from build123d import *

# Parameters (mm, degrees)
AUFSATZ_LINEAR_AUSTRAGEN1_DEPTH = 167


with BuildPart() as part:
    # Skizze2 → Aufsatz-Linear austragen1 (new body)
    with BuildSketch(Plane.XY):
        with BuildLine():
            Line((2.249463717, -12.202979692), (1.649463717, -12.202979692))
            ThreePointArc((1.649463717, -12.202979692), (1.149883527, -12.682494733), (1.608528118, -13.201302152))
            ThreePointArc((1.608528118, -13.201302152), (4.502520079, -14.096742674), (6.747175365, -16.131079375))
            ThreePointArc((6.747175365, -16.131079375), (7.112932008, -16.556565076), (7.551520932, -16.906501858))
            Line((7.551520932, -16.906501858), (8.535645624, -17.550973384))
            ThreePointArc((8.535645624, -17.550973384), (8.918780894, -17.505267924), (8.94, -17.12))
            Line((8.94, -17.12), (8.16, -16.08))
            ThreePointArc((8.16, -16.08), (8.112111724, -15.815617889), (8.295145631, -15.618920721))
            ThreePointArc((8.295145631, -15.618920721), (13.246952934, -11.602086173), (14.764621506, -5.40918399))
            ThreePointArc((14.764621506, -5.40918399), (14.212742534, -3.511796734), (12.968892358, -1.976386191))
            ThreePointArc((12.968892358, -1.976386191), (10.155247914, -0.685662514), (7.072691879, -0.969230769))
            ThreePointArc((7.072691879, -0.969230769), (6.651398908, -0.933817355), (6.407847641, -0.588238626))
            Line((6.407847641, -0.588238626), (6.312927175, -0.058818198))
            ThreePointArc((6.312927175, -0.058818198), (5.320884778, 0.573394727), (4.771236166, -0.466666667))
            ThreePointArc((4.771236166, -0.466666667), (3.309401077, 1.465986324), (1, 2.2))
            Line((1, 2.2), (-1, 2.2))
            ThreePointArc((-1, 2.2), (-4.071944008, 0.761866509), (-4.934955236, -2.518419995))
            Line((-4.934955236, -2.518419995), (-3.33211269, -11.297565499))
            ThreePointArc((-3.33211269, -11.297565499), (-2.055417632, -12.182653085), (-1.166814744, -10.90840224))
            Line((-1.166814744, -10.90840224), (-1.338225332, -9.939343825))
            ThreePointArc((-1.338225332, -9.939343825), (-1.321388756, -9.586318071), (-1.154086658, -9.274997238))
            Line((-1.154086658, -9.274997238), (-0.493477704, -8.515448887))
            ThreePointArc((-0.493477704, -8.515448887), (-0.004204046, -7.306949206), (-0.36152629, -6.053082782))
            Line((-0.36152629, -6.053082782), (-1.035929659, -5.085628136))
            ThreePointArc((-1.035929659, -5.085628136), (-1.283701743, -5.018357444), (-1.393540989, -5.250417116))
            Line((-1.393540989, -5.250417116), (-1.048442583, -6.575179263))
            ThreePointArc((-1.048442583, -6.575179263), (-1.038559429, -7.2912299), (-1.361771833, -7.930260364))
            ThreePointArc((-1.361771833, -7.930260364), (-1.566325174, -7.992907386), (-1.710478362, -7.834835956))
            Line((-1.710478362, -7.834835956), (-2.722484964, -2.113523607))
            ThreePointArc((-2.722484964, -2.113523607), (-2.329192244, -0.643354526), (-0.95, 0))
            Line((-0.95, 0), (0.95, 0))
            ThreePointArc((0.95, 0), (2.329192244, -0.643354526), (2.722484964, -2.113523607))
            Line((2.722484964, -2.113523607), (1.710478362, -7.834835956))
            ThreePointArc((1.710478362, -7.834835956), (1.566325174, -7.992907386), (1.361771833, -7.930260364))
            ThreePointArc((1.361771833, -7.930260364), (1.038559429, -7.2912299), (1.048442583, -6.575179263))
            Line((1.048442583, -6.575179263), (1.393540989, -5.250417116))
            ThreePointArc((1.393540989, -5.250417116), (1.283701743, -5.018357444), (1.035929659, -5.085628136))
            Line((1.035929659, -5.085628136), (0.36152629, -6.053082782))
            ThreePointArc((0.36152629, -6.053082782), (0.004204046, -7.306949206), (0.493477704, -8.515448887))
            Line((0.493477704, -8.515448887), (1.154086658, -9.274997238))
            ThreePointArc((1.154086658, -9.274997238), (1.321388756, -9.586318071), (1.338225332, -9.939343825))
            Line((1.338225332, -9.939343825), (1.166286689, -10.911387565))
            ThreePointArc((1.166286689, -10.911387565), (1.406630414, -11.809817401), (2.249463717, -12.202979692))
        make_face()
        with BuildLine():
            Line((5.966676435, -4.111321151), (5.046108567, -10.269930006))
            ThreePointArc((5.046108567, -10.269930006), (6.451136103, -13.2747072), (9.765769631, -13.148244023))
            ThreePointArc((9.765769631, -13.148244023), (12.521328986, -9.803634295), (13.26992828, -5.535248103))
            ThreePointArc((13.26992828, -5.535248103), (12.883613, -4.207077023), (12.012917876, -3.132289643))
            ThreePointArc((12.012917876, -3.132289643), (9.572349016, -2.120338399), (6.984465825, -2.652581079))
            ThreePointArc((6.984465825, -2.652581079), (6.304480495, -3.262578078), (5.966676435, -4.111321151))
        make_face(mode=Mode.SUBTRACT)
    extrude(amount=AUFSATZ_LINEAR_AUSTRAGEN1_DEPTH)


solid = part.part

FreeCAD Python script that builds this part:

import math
import FreeCAD as App
import Part
import Sketcher

V = App.Vector
Q = App.Units.Quantity

doc = App.newDocument("Part")
params = doc.addObject("Spreadsheet::Sheet", "Params")
for row, (alias, value) in enumerate([
    ("sketch1_radius", "6.999999 mm"),
    ("sketch1_radius2", "10 mm"),
    ("sketch1_radius3", "5 mm"),
    ("sketch1_radius4", "6 mm"),
    ("sketch1_radius5", "4 mm"),
    ("pad1_length", "167 mm"),
], start=1):
    params.set(f"A{row}", alias)
    params.set(f"B{row}", "=" + value)
    params.setAlias(f"B{row}", alias)

body = doc.addObject("PartDesign::Body", "Body")

# Sketch on XY plane
sketch1 = body.newObject("Sketcher::SketchObject", "Sketch")
sketch1.AttachmentSupport = (doc.getObject("XY_Plane"), [""])
sketch1.MapMode = "FlatFace"
sketch1.addGeometry([
    Part.LineSegment(V(2.249464, -12.20298, 0), V(1.649464, -12.20298, 0)),  # 0
    Part.ArcOfCircle(Part.Circle(V(1.649464, -12.70298, 0), V(0, 0, 1), 0.500001), math.radians(90.000057), math.radians(265.303817)),  # 1
    Part.ArcOfCircle(Part.Circle(V(1.035431, -20.177802, 0), V(0, 0, 1), 6.999999), math.radians(35.317247), math.radians(85.303878)),  # 2
    Part.ArcOfCircle(Part.Circle(V(9.19506, -14.396774, 0), V(0, 0, 1), 2.999992), math.radians(-144.682756), math.radians(-123.219486)),  # 3
    Part.LineSegment(V(7.551521, -16.906502, 0), V(8.535646, -17.550973, 0)),  # 4
    Part.ArcOfCircle(Part.Circle(V(8.7, -17.3, 0), V(0, 0, 1), 0.3), math.radians(-123.219496), math.radians(36.869898)),  # 5
    Part.LineSegment(V(8.94, -17.12, 0), V(8.16, -16.08, 0)),  # 6
    Part.ArcOfCircle(Part.Circle(V(8.4, -15.9, 0), V(0, 0, 1), 0.3), math.radians(110.457626), math.radians(216.869898)),  # 7
    Part.ArcOfCircle(Part.Circle(V(4.8, -6.249611, 0), V(0, 0, 1), 10), math.radians(-69.542373), math.radians(4.820981)),  # 8
    Part.ArcOfCircle(Part.Circle(V(9.782311, -5.829398, 0), V(0, 0, 1), 5), math.radians(4.820981), math.radians(50.408006)),  # 9
    Part.ArcOfCircle(Part.Circle(V(9.144994, -6.6, 0), V(0, 0, 1), 6), math.radians(50.408006), math.radians(110.205224)),  # 10
    Part.ArcOfCircle(Part.Circle(V(6.9, -0.5, 0), V(0, 0, 1), 0.5), math.radians(-169.835364), math.radians(-69.794776)),  # 11
    Part.LineSegment(V(6.407848, -0.588239, 0), V(6.312927, -0.058818, 0)),  # 12
    Part.ArcOfCircle(Part.Circle(V(5.525483, -0.2, 0), V(0, 0, 1), 0.8), math.radians(10.164637), math.radians(199.471221)),  # 13
    Part.ArcOfCircle(Part.Circle(V(1, -1.8, 0), V(0, 0, 1), 4), math.radians(19.471221), math.radians(90)),  # 14
    Part.LineSegment(V(1, 2.2, 0), V(-1, 2.2, 0)),  # 15
    Part.ArcOfCircle(Part.Circle(V(-1, -1.8, 0), V(0, 0, 1), 4), math.radians(90), math.radians(190.346753)),  # 16
    Part.LineSegment(V(-4.934955, -2.51842, 0), V(-3.332113, -11.297565, 0)),  # 17
    Part.ArcOfCircle(Part.Circle(V(-2.25, -11.1, 0), V(0, 0, 1), 1.1), math.radians(-169.653247), math.radians(10.03093)),  # 18
    Part.LineSegment(V(-1.166815, -10.908402, 0), V(-1.338225, -9.939344, 0)),  # 19
    Part.ArcOfCircle(Part.Circle(V(-0.550454, -9.8, 0), V(0, 0, 1), 0.8), math.radians(138.985238), math.radians(190.03093)),  # 20
    Part.LineSegment(V(-1.154087, -9.274997, 0), V(-0.493478, -8.515449, 0)),  # 21
    Part.ArcOfCircle(Part.Circle(V(-2.006331, -7.199661, 0), V(0, 0, 1), 2.005), math.radians(-41.014762), math.radians(34.879984)),  # 22
    Part.LineSegment(V(-0.361526, -6.053083, 0), V(-1.03593, -5.085628, 0)),  # 23
    Part.ArcOfCircle(Part.Circle(V(-1.2, -5.2, 0), V(0, 0, 1), 0.2), math.radians(34.879984), math.radians(194.60096)),  # 24
    Part.LineSegment(V(-1.393541, -5.250417, 0), V(-1.048443, -6.575179, 0)),  # 25
    Part.ArcOfCircle(Part.Circle(V(-2.5, -6.953308, 0), V(0, 0, 1), 1.5), math.radians(-40.639826), math.radians(14.600961)),  # 26
    Part.ArcOfCircle(Part.Circle(V(-1.513536, -7.8, 0), V(0, 0, 1), 0.2), math.radians(-169.96907), math.radians(-40.639826)),  # 27
    Part.LineSegment(V(-1.710478, -7.834836, 0), V(-2.722485, -2.113524, 0)),  # 28
    Part.ArcOfCircle(Part.Circle(V(-0.95, -1.8, 0), V(0, 0, 1), 1.8), math.radians(90), math.radians(190.03093)),  # 29
    Part.LineSegment(V(-0.95, 0, 0), V(0.95, 0, 0)),  # 30
    Part.ArcOfCircle(Part.Circle(V(0.95, -1.8, 0), V(0, 0, 1), 1.8), math.radians(-10.03093), math.radians(90)),  # 31
    Part.LineSegment(V(2.722485, -2.113524, 0), V(1.710478, -7.834836, 0)),  # 32
    Part.ArcOfCircle(Part.Circle(V(1.513536, -7.8, 0), V(0, 0, 1), 0.2), math.radians(-139.360174), math.radians(-10.03093)),  # 33
    Part.ArcOfCircle(Part.Circle(V(2.5, -6.953308, 0), V(0, 0, 1), 1.5), math.radians(165.399039), math.radians(220.639826)),  # 34
    Part.LineSegment(V(1.048443, -6.575179, 0), V(1.393541, -5.250417, 0)),  # 35
    Part.ArcOfCircle(Part.Circle(V(1.2, -5.2, 0), V(0, 0, 1), 0.2), math.radians(-14.60096), math.radians(145.120016)),  # 36
    Part.LineSegment(V(1.03593, -5.085628, 0), V(0.361526, -6.053083, 0)),  # 37
    Part.ArcOfCircle(Part.Circle(V(2.006331, -7.199661, 0), V(0, 0, 1), 2.005), math.radians(145.120016), math.radians(221.014762)),  # 38
    Part.LineSegment(V(0.493478, -8.515449, 0), V(1.154087, -9.274997, 0)),  # 39
    Part.ArcOfCircle(Part.Circle(V(0.550454, -9.8, 0), V(0, 0, 1), 0.8), math.radians(-10.03093), math.radians(41.014762)),  # 40
    Part.LineSegment(V(1.338225, -9.939344, 0), V(1.166287, -10.911388, 0)),  # 41
    Part.ArcOfCircle(Part.Circle(V(2.24947, -11.102982, 0), V(0, 0, 1), 1.099997), math.radians(169.969212), math.radians(269.999675)),  # 42
    Part.LineSegment(V(5.046109, -10.26993, 0), V(5.966676, -4.111321, 0)),  # 43
    Part.ArcOfCircle(Part.Circle(V(7.944701, -4.406989, 0), V(0, 0, 1), 2), math.radians(118.693074), math.radians(171.498566)),  # 44
    Part.ArcOfCircle(Part.Circle(V(9.144994, -6.6, 0), V(0, 0, 1), 4.5), math.radians(50.408006), math.radians(118.693074)),  # 45
    Part.ArcOfCircle(Part.Circle(V(9.782311, -5.829398, 0), V(0, 0, 1), 3.5), math.radians(4.820981), math.radians(50.408006)),  # 46
    Part.ArcOfCircle(Part.Circle(V(4.8, -6.249611, 0), V(0, 0, 1), 8.5), math.radians(-54.252928), math.radians(4.820981)),  # 47
    Part.ArcOfCircle(Part.Circle(V(8.013145, -10.713433, 0), V(0, 0, 1), 3), math.radians(171.498566), math.radians(305.747072)),  # 48
], False)
sketch1.addConstraint([
    Sketcher.Constraint("Coincident", 0, 2, 1, 1),
    Sketcher.Constraint("Coincident", 1, 2, 2, 2),
    Sketcher.Constraint("Coincident", 2, 1, 3, 1),
    Sketcher.Constraint("Coincident", 3, 2, 4, 1),
    Sketcher.Constraint("Coincident", 4, 2, 5, 1),
    Sketcher.Constraint("Coincident", 5, 2, 6, 1),
    Sketcher.Constraint("Coincident", 6, 2, 7, 2),
    Sketcher.Constraint("Coincident", 7, 1, 8, 1),
    Sketcher.Constraint("Coincident", 8, 2, 9, 1),
    Sketcher.Constraint("Coincident", 9, 2, 10, 1),
    Sketcher.Constraint("Coincident", 10, 2, 11, 2),
    Sketcher.Constraint("Coincident", 11, 1, 12, 1),
    Sketcher.Constraint("Coincident", 12, 2, 13, 1),
    Sketcher.Constraint("Coincident", 13, 2, 14, 1),
    Sketcher.Constraint("Coincident", 14, 2, 15, 1),
    Sketcher.Constraint("Coincident", 15, 2, 16, 1),
    Sketcher.Constraint("Coincident", 16, 2, 17, 1),
    Sketcher.Constraint("Coincident", 17, 2, 18, 1),
    Sketcher.Constraint("Coincident", 18, 2, 19, 1),
    Sketcher.Constraint("Coincident", 19, 2, 20, 2),
    Sketcher.Constraint("Coincident", 20, 1, 21, 1),
    Sketcher.Constraint("Coincident", 21, 2, 22, 1),
    Sketcher.Constraint("Coincident", 22, 2, 23, 1),
    Sketcher.Constraint("Coincident", 23, 2, 24, 1),
    Sketcher.Constraint("Coincident", 24, 2, 25, 1),
    Sketcher.Constraint("Coincident", 25, 2, 26, 2),
    Sketcher.Constraint("Coincident", 26, 1, 27, 2),
    Sketcher.Constraint("Coincident", 27, 1, 28, 1),
    Sketcher.Constraint("Coincident", 28, 2, 29, 2),
    Sketcher.Constraint("Coincident", 29, 1, 30, 1),
    Sketcher.Constraint("Coincident", 30, 2, 31, 2),
    Sketcher.Constraint("Coincident", 31, 1, 32, 1),
    Sketcher.Constraint("Coincident", 32, 2, 33, 2),
    Sketcher.Constraint("Coincident", 33, 1, 34, 2),
    Sketcher.Constraint("Coincident", 34, 1, 35, 1),
    Sketcher.Constraint("Coincident", 35, 2, 36, 1),
    Sketcher.Constraint("Coincident", 36, 2, 37, 1),
    Sketcher.Constraint("Coincident", 37, 2, 38, 1),
    Sketcher.Constraint("Coincident", 38, 2, 39, 1),
    Sketcher.Constraint("Coincident", 39, 2, 40, 2),
    Sketcher.Constraint("Coincident", 40, 1, 41, 1),
    Sketcher.Constraint("Coincident", 41, 2, 42, 1),
    Sketcher.Constraint("Coincident", 42, 2, 0, 1),
    Sketcher.Constraint("Coincident", 43, 2, 44, 2),
    Sketcher.Constraint("Coincident", 44, 1, 45, 2),
    Sketcher.Constraint("Coincident", 45, 1, 46, 2),
    Sketcher.Constraint("Coincident", 46, 1, 47, 2),
    Sketcher.Constraint("Coincident", 47, 1, 48, 2),
    Sketcher.Constraint("Coincident", 48, 1, 43, 1),
    Sketcher.Constraint("Horizontal", 0),
    Sketcher.Constraint("Horizontal", 15),
    Sketcher.Constraint("Horizontal", 30),
    Sketcher.Constraint("Coincident", 45, 3, 10, 3),
    Sketcher.Constraint("Coincident", 46, 3, 9, 3),
    Sketcher.Constraint("Coincident", 47, 3, 8, 3),
    Sketcher.Constraint("PointOnObject", 29, 1, -1),
    Sketcher.Constraint("Radius", 2, Q("6.999999 mm")),
    Sketcher.Constraint("Radius", 8, Q("10 mm")),
    Sketcher.Constraint("Radius", 9, Q("5 mm")),
    Sketcher.Constraint("Radius", 10, Q("6 mm")),
    Sketcher.Constraint("Radius", 14, Q("4 mm")),
    Sketcher.Constraint("Radius", 16, Q("4 mm")),
    Sketcher.Constraint("Radius", 44, Q("2 mm")),
    Sketcher.Constraint("Radius", 48, Q("3 mm")),
    Sketcher.Constraint("Radius", 1, Q("0.500001 mm")),
    Sketcher.Constraint("Radius", 5, Q("0.3 mm")),
    Sketcher.Constraint("Radius", 7, Q("0.3 mm")),
    Sketcher.Constraint("Radius", 11, Q("0.5 mm")),
    Sketcher.Constraint("Radius", 13, Q("0.8 mm")),
    Sketcher.Constraint("Radius", 18, Q("1.1 mm")),
    Sketcher.Constraint("Radius", 20, Q("0.8 mm")),
    Sketcher.Constraint("Radius", 24, Q("0.2 mm")),
    Sketcher.Constraint("Radius", 26, Q("1.5 mm")),
    Sketcher.Constraint("Radius", 27, Q("0.2 mm")),
    Sketcher.Constraint("Radius", 29, Q("1.8 mm")),
    Sketcher.Constraint("Radius", 31, Q("1.8 mm")),
    Sketcher.Constraint("Radius", 33, Q("0.2 mm")),
    Sketcher.Constraint("Radius", 34, Q("1.5 mm")),
    Sketcher.Constraint("Radius", 36, Q("0.2 mm")),
    Sketcher.Constraint("Radius", 40, Q("0.8 mm")),
    Sketcher.Constraint("Radius", 45, Q("4.5 mm")),
    Sketcher.Constraint("DistanceX", 15, 2, 15, 1, Q("2 mm")),
    Sketcher.Constraint("DistanceX", 0, 2, 0, 1, Q("0.6 mm")),
    Sketcher.Constraint("DistanceX", 30, 1, 30, 2, Q("1.9 mm")),
    Sketcher.Constraint("DistanceX", -1, 1, 14, 3, Q("1 mm")),
    Sketcher.Constraint("DistanceX", 16, 3, -1, 1, Q("1 mm")),
    Sketcher.Constraint("DistanceX", -1, 1, 14, 2, Q("1 mm")),
    Sketcher.Constraint("Radius", 22, Q("2.005 mm")),
    Sketcher.Constraint("Radius", 38, Q("2.005 mm")),
    Sketcher.Constraint("Distance", 6, Q("1.3 mm")),
    Sketcher.Constraint("DistanceX", -1, 1, 5, 3, Q("8.7 mm")),
    Sketcher.Constraint("DistanceY", 5, 3, -1, 1, Q("17.3 mm")),
    Sketcher.Constraint("DistanceX", -1, 1, 7, 3, Q("8.4 mm")),
    Sketcher.Constraint("DistanceY", 7, 3, -1, 1, Q("15.9 mm")),
    Sketcher.Constraint("DistanceX", -1, 1, 8, 3, Q("4.8 mm")),
    Sketcher.Constraint("DistanceY", 10, 3, -1, 1, Q("6.6 mm")),
    Sketcher.Constraint("DistanceX", -1, 1, 11, 3, Q("6.9 mm")),
    Sketcher.Constraint("DistanceY", 11, 3, -1, 1, Q("0.5 mm")),
    Sketcher.Constraint("DistanceY", 13, 3, -1, 1, Q("0.2 mm")),
    Sketcher.Constraint("DistanceY", 14, 3, -1, 1, Q("1.8 mm")),
    Sketcher.Constraint("DistanceY", 18, 3, -1, 1, Q("11.1 mm")),
    Sketcher.Constraint("DistanceY", 20, 3, -1, 1, Q("9.8 mm")),
    Sketcher.Constraint("DistanceX", 24, 3, -1, 1, Q("1.2 mm")),
    Sketcher.Constraint("DistanceY", 24, 3, -1, 1, Q("5.2 mm")),
    Sketcher.Constraint("DistanceX", 26, 3, -1, 1, Q("2.5 mm")),
    Sketcher.Constraint("DistanceY", 27, 3, -1, 1, Q("7.8 mm")),
    Sketcher.Constraint("DistanceY", 33, 3, -1, 1, Q("7.8 mm")),
    Sketcher.Constraint("DistanceX", -1, 1, 34, 3, Q("2.5 mm")),
    Sketcher.Constraint("DistanceX", -1, 1, 36, 3, Q("1.2 mm")),
    Sketcher.Constraint("DistanceY", 36, 3, -1, 1, Q("5.2 mm")),
    Sketcher.Constraint("DistanceY", 40, 3, -1, 1, Q("9.8 mm")),
    Sketcher.Constraint("DistanceX", 18, 3, -1, 1, Q("2.25 mm")),
    Sketcher.Constraint("DistanceX", 29, 3, -1, 1, Q("0.95 mm")),
    Sketcher.Constraint("DistanceX", -1, 1, 31, 3, Q("0.95 mm")),
    Sketcher.Constraint("DistanceX", -1, 1, 5, 2, Q("8.94 mm")),
    Sketcher.Constraint("DistanceX", 29, 1, -1, 1, Q("0.95 mm")),
    Sketcher.Constraint("Radius", 3, Q("2.999992 mm")),
    Sketcher.Constraint("Radius", 42, Q("1.099997 mm")),
    Sketcher.Constraint("Distance", 19, Q("0.984102 mm")),
    Sketcher.Constraint("DistanceY", 2, 3, -1, 1, Q("20.177802 mm")),
    Sketcher.Constraint("DistanceX", -1, 1, 44, 3, Q("7.944701 mm")),
    Sketcher.Constraint("DistanceY", 3, 2, -1, 1, Q("16.906502 mm")),
    Sketcher.Constraint("Distance", 4, Q("1.176369 mm")),
    Sketcher.Constraint("Distance", 43, Q("6.22703 mm")),
    Sketcher.Constraint("DistanceY", 1, 3, -1, 1, Q("12.70298 mm")),
    Sketcher.Constraint("DistanceX", -1, 1, 2, 3, Q("1.035431 mm")),
    Sketcher.Constraint("DistanceX", -1, 1, 3, 3, Q("9.19506 mm")),
    Sketcher.Constraint("DistanceX", 22, 3, -1, 1, Q("2.006331 mm")),
    Sketcher.Constraint("DistanceY", 22, 3, -1, 1, Q("7.199661 mm")),
    Sketcher.Constraint("DistanceX", -1, 1, 38, 3, Q("2.006331 mm")),
    Sketcher.Constraint("DistanceY", 38, 3, -1, 1, Q("7.199661 mm")),
    Sketcher.Constraint("DistanceX", -1, 1, 42, 3, Q("2.24947 mm")),
    Sketcher.Constraint("DistanceX", -1, 1, 1, 2, Q("1.608528 mm")),
    Sketcher.Constraint("DistanceY", 2, 1, -1, 1, Q("16.131079 mm")),
    Sketcher.Constraint("DistanceY", 7, 1, -1, 1, Q("15.618921 mm")),
    Sketcher.Constraint("DistanceX", -1, 1, 8, 2, Q("14.764622 mm")),
    Sketcher.Constraint("DistanceX", -1, 1, 10, 2, Q("7.072692 mm")),
    Sketcher.Constraint("DistanceY", 11, 1, -1, 1, Q("0.588239 mm")),
    Sketcher.Constraint("DistanceY", 12, 2, -1, 1, Q("0.058818 mm")),
    Sketcher.Constraint("DistanceY", 16, 2, -1, 1, Q("2.51842 mm")),
    Sketcher.Constraint("DistanceY", 21, 2, -1, 1, Q("8.515449 mm")),
    Sketcher.Constraint("DistanceX", 23, 2, -1, 1, Q("1.03593 mm")),
    Sketcher.Constraint("DistanceX", 24, 2, -1, 1, Q("1.393541 mm")),
    Sketcher.Constraint("DistanceY", 25, 2, -1, 1, Q("6.575179 mm")),
    Sketcher.Constraint("DistanceX", 26, 1, -1, 1, Q("1.361772 mm")),
    Sketcher.Constraint("DistanceY", 26, 1, -1, 1, Q("7.93026 mm")),
    Sketcher.Constraint("DistanceX", 27, 1, -1, 1, Q("1.710478 mm")),
    Sketcher.Constraint("DistanceX", -1, 1, 32, 2, Q("1.710478 mm")),
    Sketcher.Constraint("DistanceX", -1, 1, 33, 1, Q("1.361772 mm")),
    Sketcher.Constraint("DistanceY", 33, 1, -1, 1, Q("7.93026 mm")),
    Sketcher.Constraint("DistanceY", 34, 1, -1, 1, Q("6.575179 mm")),
    Sketcher.Constraint("DistanceX", -1, 1, 35, 2, Q("1.393541 mm")),
    Sketcher.Constraint("DistanceX", -1, 1, 36, 2, Q("1.03593 mm")),
    Sketcher.Constraint("DistanceY", 38, 2, -1, 1, Q("8.515449 mm")),
    Sketcher.Constraint("DistanceY", 43, 2, -1, 1, Q("4.111321 mm")),
    Sketcher.Constraint("DistanceY", 44, 1, -1, 1, Q("2.652581 mm")),
    Sketcher.Constraint("DistanceY", 45, 1, -1, 1, Q("3.13229 mm")),
    Sketcher.Constraint("DistanceX", -1, 1, 46, 1, Q("13.269928 mm")),
    Sketcher.Constraint("DistanceX", -1, 1, 47, 1, Q("9.76577 mm")),
    Sketcher.Constraint("DistanceX", -1, 1, 48, 1, Q("5.046109 mm")),
    Sketcher.Constraint("Distance", 17, Q("8.924265 mm")),
    Sketcher.Constraint("Distance", 21, Q("1.006637 mm")),
    Sketcher.Constraint("Distance", 23, Q("1.179317 mm")),
    Sketcher.Constraint("Distance", 28, Q("5.810127 mm")),
    Sketcher.Constraint("Distance", 32, Q("5.810127 mm")),
    Sketcher.Constraint("Distance", 37, Q("1.179317 mm")),
    Sketcher.Constraint("Distance", 39, Q("1.006637 mm")),
    Sketcher.Constraint("Distance", 41, Q("0.987133 mm")),
    Sketcher.Constraint("DistanceX", 20, 3, -1, 1, Q("0.550454 mm")),
    Sketcher.Constraint("DistanceX", -1, 1, 40, 3, Q("0.550454 mm")),
    Sketcher.Constraint("DistanceX", -1, 1, 0, 2, Q("1.649464 mm")),
    Sketcher.Constraint("DistanceX", -1, 1, 9, 2, Q("12.968892 mm")),
    Sketcher.Constraint("DistanceX", -1, 1, 13, 2, Q("4.771236 mm")),
    Sketcher.Constraint("DistanceX", 18, 2, -1, 1, Q("1.166815 mm")),
    Sketcher.Constraint("DistanceX", -1, 1, 40, 1, Q("1.338225 mm")),
])
sketch1.setExpression("Constraints[56]", "Params.sketch1_radius")
sketch1.setExpression("Constraints[57]", "Params.sketch1_radius2")
sketch1.setExpression("Constraints[58]", "Params.sketch1_radius3")
sketch1.setExpression("Constraints[59]", "Params.sketch1_radius4")
sketch1.setExpression("Constraints[60]", "Params.sketch1_radius5")
pad1 = body.newObject("PartDesign::Pad", "Pad")
pad1.Profile = sketch1
pad1.setExpression("Length", "Params.pad1_length")

doc.recompute()
